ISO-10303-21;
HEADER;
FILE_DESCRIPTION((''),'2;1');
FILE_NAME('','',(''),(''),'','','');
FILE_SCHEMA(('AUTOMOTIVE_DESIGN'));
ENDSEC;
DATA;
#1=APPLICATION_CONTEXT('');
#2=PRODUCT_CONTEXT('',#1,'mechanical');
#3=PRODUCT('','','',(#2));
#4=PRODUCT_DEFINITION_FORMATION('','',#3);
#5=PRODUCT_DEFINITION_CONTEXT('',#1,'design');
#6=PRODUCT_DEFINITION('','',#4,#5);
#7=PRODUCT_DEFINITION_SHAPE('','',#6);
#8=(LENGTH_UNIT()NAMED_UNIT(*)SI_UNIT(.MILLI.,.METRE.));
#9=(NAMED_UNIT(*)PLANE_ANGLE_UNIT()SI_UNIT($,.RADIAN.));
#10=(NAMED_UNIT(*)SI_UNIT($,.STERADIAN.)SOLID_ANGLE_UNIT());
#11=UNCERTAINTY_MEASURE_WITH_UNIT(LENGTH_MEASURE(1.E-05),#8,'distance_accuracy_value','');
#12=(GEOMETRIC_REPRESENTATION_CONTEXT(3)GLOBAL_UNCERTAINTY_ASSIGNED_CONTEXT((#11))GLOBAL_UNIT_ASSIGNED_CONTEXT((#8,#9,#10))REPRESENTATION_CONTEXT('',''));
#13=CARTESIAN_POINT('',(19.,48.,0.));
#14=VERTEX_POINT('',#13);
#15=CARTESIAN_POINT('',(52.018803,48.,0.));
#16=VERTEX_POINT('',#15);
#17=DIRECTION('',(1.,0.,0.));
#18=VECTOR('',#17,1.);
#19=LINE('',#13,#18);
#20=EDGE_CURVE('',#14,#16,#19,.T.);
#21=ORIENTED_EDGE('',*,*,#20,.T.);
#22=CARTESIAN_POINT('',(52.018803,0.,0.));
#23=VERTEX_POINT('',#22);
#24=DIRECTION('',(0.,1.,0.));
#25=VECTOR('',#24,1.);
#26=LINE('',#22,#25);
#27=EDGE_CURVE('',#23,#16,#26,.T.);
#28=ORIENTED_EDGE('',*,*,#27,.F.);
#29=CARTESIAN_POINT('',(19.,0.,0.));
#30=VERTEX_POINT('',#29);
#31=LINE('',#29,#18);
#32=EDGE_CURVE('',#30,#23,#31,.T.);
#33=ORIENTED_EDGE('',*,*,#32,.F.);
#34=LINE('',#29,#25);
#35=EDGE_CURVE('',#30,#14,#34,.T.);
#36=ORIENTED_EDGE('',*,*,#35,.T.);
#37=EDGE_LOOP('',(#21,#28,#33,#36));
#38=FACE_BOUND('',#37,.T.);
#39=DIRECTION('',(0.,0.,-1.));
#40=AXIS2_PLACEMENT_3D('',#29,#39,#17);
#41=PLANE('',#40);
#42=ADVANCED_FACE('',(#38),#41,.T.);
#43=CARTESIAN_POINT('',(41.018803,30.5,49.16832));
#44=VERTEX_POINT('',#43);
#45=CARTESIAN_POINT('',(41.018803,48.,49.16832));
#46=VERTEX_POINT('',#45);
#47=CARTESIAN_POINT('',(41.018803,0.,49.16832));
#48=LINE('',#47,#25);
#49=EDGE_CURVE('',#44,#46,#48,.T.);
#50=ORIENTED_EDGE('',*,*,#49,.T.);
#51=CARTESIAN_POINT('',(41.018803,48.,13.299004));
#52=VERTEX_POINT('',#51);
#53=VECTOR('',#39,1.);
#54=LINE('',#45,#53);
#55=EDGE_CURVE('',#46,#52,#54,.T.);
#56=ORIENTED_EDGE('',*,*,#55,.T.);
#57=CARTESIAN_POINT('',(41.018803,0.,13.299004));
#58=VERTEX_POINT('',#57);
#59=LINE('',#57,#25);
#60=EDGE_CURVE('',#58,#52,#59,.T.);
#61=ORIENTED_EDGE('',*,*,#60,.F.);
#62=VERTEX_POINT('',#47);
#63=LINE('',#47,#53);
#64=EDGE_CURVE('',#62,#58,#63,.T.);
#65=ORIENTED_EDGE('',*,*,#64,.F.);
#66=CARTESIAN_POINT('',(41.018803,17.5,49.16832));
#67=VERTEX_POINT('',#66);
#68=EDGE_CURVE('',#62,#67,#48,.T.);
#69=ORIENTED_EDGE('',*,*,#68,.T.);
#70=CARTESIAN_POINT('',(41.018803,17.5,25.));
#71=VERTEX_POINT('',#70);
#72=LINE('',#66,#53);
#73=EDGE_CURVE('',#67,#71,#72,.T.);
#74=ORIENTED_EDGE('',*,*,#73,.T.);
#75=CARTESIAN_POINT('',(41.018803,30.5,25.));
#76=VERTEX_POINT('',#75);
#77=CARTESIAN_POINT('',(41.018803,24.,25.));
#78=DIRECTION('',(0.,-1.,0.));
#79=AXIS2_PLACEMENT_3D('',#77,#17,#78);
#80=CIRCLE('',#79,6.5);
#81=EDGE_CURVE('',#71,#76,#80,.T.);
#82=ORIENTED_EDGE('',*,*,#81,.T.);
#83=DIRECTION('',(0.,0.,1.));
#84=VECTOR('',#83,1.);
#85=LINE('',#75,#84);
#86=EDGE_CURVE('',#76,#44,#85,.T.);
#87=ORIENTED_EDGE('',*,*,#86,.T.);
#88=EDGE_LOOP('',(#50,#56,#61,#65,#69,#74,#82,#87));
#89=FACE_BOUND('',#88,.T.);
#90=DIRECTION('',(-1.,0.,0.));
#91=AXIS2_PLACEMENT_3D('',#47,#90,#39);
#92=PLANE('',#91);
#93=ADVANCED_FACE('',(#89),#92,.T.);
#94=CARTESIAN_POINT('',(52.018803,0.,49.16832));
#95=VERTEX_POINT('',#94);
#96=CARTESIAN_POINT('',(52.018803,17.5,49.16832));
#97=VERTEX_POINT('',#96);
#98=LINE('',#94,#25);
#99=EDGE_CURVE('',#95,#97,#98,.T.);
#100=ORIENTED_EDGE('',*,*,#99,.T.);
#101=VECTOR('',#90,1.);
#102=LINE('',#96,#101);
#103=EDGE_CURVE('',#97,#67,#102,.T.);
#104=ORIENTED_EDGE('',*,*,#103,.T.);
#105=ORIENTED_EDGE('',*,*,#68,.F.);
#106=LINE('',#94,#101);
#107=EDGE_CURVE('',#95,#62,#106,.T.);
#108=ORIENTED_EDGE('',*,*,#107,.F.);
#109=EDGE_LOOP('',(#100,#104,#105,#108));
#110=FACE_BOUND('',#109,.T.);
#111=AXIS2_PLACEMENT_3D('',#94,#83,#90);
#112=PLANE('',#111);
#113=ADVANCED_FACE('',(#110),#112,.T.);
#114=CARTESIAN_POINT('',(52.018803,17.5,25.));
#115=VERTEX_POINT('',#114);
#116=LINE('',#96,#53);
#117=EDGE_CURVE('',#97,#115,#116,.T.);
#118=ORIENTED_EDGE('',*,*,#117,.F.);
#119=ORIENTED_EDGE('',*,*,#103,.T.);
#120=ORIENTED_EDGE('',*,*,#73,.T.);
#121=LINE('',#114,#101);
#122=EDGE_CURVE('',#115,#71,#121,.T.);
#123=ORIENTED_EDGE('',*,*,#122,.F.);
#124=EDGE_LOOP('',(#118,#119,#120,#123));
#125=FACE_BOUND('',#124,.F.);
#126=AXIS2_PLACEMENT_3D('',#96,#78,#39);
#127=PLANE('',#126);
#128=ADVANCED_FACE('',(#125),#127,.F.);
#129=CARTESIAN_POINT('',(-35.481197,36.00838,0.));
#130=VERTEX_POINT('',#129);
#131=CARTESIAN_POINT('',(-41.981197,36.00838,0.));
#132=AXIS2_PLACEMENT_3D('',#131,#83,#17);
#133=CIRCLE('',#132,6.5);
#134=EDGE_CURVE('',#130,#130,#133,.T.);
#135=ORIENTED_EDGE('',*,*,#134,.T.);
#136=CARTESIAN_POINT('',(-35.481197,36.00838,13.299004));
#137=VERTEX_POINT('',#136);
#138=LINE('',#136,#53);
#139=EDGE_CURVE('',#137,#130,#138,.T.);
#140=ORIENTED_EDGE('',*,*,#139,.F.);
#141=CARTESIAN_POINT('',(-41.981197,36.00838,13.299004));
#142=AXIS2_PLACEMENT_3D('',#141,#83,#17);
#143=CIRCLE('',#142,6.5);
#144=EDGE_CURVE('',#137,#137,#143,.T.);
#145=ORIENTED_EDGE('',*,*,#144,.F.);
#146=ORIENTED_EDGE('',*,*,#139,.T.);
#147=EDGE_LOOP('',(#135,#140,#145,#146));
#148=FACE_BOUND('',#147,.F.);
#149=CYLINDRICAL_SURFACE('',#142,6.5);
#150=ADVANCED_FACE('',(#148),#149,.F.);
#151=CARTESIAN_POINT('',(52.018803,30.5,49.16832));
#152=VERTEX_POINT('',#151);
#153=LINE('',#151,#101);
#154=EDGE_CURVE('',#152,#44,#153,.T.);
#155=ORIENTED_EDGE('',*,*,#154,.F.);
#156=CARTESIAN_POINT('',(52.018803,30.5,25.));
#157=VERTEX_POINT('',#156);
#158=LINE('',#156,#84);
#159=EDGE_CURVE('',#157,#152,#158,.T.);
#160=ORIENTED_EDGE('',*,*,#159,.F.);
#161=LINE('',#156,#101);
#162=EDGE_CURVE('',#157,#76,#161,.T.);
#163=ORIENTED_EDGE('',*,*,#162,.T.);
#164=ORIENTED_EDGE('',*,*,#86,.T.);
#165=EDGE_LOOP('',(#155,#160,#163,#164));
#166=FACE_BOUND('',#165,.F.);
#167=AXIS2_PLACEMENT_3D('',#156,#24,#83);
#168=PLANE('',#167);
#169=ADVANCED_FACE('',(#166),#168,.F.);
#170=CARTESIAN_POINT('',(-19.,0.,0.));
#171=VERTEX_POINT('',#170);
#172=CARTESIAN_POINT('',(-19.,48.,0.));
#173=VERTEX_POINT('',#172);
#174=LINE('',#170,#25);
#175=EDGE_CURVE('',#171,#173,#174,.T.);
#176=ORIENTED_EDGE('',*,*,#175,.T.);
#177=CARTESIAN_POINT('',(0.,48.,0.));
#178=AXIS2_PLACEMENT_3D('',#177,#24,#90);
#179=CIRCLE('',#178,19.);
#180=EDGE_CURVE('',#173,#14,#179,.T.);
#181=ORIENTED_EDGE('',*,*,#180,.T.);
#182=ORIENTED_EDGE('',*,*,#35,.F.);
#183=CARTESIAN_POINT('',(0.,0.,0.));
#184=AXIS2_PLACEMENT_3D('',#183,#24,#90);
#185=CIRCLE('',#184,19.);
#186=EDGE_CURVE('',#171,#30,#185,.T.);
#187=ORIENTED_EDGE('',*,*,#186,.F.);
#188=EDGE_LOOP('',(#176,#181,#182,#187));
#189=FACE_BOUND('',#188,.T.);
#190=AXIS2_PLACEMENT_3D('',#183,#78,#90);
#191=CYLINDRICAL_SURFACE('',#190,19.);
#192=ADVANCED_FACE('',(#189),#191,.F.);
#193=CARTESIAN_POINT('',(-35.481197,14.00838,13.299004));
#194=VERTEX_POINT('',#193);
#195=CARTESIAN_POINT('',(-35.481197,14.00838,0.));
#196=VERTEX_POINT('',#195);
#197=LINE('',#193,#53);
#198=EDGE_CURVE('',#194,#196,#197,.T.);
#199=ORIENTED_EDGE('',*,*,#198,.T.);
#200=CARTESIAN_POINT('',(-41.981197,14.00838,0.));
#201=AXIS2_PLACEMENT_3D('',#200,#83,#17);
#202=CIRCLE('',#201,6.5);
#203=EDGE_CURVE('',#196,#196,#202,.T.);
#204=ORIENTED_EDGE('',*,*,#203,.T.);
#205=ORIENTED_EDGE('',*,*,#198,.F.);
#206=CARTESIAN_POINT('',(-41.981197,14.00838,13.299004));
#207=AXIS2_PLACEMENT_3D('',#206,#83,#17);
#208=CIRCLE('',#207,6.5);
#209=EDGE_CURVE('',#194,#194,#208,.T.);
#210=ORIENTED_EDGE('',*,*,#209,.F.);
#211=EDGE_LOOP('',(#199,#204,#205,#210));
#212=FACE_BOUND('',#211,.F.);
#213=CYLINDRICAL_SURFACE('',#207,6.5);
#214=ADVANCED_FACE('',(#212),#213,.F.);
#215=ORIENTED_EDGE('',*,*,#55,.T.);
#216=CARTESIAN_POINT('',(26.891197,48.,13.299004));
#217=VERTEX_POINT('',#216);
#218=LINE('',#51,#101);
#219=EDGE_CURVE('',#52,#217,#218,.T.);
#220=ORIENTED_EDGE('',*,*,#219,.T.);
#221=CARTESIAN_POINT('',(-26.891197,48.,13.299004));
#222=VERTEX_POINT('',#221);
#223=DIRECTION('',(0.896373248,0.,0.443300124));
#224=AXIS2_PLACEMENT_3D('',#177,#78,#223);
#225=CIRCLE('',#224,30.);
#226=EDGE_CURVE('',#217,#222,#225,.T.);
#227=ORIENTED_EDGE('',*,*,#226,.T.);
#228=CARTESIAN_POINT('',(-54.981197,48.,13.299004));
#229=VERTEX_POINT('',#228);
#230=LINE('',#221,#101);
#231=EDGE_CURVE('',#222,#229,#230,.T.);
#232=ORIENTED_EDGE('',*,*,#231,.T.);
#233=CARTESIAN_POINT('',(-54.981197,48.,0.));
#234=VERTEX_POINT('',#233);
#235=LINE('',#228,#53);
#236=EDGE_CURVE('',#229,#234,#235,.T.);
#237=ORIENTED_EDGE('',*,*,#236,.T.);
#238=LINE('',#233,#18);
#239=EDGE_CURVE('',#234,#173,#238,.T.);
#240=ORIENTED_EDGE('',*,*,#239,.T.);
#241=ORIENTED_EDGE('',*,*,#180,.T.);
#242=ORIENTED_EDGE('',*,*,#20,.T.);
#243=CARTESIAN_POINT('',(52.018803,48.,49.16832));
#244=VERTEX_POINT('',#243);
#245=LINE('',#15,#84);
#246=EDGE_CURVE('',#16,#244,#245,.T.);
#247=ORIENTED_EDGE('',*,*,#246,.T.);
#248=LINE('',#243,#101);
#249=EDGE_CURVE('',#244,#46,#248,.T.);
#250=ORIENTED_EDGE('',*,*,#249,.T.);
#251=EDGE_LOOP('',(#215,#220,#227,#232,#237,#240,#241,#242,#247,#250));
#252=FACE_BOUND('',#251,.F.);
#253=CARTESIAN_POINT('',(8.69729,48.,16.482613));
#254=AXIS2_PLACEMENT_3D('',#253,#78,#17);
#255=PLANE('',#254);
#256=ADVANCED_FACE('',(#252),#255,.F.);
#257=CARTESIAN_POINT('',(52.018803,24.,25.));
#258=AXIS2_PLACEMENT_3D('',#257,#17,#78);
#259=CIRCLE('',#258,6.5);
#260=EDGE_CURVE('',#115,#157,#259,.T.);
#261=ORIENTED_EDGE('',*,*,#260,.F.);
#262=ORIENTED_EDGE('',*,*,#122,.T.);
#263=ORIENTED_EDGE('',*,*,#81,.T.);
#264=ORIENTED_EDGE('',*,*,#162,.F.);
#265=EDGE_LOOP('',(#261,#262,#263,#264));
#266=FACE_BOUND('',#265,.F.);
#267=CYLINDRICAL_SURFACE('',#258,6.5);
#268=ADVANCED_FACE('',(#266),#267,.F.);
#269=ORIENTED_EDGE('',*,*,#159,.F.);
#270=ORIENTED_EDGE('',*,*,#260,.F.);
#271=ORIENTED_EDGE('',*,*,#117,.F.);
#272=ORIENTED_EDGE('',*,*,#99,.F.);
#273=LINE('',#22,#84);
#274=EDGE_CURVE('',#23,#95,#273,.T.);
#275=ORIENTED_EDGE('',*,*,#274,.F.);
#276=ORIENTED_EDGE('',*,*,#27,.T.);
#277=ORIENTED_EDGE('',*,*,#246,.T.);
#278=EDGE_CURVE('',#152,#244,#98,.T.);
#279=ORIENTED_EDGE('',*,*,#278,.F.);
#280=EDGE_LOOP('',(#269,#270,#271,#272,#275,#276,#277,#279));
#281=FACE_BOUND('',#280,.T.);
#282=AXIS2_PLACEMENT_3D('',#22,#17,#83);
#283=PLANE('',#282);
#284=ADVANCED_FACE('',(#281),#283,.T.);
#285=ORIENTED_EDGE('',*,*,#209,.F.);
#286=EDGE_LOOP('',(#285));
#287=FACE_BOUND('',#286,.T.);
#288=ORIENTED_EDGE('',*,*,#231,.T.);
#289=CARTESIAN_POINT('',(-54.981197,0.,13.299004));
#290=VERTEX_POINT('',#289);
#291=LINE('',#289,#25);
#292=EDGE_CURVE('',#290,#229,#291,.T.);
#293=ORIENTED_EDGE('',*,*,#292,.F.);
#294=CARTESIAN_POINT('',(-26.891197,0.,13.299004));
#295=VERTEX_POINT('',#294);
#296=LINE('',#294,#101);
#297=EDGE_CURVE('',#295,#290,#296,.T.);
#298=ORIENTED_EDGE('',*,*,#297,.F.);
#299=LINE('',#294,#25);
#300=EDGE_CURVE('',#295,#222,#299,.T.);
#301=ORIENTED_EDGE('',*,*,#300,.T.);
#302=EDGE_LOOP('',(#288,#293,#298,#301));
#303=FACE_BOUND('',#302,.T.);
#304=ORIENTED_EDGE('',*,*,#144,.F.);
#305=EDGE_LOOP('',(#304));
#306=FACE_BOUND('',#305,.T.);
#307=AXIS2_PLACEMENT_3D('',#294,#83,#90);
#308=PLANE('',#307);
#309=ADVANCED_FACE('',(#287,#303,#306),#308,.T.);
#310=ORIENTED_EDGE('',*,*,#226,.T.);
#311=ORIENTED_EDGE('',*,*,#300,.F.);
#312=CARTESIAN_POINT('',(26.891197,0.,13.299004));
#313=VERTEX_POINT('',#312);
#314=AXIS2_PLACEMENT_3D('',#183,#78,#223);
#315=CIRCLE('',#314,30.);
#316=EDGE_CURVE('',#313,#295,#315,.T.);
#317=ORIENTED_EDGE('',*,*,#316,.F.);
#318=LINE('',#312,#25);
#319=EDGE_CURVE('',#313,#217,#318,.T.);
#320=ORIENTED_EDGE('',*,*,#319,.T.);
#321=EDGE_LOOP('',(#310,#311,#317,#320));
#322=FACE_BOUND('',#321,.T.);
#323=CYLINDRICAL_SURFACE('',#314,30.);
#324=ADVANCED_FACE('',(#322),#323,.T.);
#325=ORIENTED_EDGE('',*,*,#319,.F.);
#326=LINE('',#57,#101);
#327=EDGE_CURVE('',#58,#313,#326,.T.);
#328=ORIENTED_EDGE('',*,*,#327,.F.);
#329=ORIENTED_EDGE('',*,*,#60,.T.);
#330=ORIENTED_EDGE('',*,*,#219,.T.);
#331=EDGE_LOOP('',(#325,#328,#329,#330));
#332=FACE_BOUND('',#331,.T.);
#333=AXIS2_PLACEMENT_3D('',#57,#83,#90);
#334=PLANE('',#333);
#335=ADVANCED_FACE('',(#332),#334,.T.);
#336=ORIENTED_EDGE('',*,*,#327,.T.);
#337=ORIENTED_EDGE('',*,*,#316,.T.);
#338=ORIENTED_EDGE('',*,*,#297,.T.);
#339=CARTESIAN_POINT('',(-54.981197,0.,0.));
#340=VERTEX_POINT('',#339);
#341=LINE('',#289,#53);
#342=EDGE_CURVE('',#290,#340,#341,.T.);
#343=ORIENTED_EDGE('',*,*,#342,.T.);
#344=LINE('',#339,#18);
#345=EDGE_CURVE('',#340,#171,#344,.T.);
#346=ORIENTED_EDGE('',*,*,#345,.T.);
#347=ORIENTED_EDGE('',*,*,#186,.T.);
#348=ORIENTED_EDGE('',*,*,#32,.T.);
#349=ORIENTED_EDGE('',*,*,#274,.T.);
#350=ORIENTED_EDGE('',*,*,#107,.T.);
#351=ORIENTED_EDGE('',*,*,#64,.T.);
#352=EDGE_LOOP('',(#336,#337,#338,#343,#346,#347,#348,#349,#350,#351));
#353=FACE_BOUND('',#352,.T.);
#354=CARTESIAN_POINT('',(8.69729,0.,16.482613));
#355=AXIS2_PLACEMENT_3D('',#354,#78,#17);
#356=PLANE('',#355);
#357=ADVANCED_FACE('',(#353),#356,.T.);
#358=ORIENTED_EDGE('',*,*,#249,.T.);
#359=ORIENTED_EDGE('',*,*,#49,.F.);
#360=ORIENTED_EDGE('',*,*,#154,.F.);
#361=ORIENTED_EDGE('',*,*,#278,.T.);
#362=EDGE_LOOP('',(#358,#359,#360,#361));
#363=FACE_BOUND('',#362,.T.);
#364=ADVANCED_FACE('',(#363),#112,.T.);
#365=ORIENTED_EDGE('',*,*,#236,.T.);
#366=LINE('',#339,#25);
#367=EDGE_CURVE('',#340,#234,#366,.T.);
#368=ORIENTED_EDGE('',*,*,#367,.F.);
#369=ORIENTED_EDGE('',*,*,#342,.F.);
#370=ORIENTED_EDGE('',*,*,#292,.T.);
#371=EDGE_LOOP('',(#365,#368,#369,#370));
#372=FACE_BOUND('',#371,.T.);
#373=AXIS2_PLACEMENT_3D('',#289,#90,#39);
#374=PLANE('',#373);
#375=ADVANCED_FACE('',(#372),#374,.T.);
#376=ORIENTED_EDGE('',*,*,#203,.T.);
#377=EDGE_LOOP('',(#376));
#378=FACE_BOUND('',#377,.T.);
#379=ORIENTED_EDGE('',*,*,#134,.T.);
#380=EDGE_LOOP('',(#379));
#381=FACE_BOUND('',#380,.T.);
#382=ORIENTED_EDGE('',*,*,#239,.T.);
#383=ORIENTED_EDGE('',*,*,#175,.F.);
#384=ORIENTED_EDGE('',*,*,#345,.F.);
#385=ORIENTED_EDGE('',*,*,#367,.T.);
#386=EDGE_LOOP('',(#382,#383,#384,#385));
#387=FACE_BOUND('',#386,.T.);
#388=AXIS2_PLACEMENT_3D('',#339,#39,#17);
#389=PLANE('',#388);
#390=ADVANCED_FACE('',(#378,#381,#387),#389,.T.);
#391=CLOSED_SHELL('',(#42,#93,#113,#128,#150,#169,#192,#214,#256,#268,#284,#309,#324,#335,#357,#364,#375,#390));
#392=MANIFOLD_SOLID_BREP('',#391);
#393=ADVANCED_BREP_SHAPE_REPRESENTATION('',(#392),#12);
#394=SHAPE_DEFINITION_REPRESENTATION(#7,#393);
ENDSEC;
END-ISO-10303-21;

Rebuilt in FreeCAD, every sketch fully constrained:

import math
import FreeCAD as App
import Part
import Sketcher
from FreeCAD import Vector
Q = App.Units.Quantity

doc = App.newDocument("Part")
body = doc.addObject("PartDesign::Body", "Body")

sketch1 = body.newObject("Sketcher::SketchObject", "Sketch")
sketch1.AttachmentSupport = (doc.getObject("XZ_Plane"), [""])
sketch1.MapMode = "FlatFace"
sketch1.addGeometry(Part.LineSegment(Vector(-54.981197, 0, 0), Vector(-19, 0, 0)), False)
sketch1.addGeometry(Part.ArcOfCircle(Part.Circle(Vector(0, 0, 0), Vector(0, 0, 1), 19), math.radians(0), math.radians(180)), False)
sketch1.addGeometry(Part.LineSegment(Vector(19, 0, 0), Vector(52.018803, 0, 0)), False)
sketch1.addGeometry(Part.LineSegment(Vector(52.018803, 0, 0), Vector(52.018803, 49.16832, 0)), False)
sketch1.addGeometry(Part.LineSegment(Vector(52.018803, 49.16832, 0), Vector(41.018803, 49.16832, 0)), False)
sketch1.addGeometry(Part.LineSegment(Vector(41.018803, 49.16832, 0), Vector(41.018803, 13.299004, 0)), False)
sketch1.addGeometry(Part.LineSegment(Vector(41.018803, 13.299004, 0), Vector(26.891197, 13.299004, 0)), False)
sketch1.addGeometry(Part.ArcOfCircle(Part.Circle(Vector(0, 0, 0), Vector(0, 0, 1), 30), math.radians(26.314632), math.radians(153.685368)), False)
sketch1.addGeometry(Part.LineSegment(Vector(-26.891197, 13.299004, 0), Vector(-54.981197, 13.299004, 0)), False)
sketch1.addGeometry(Part.LineSegment(Vector(-54.981197, 13.299004, 0), Vector(-54.981197, 0, 0)), False)
sketch1.addConstraint(Sketcher.Constraint("Coincident", 0, 2, 1, 2))
sketch1.addConstraint(Sketcher.Constraint("Coincident", 1, 1, 2, 1))
sketch1.addConstraint(Sketcher.Constraint("Coincident", 2, 2, 3, 1))
sketch1.addConstraint(Sketcher.Constraint("Coincident", 3, 2, 4, 1))
sketch1.addConstraint(Sketcher.Constraint("Coincident", 4, 2, 5, 1))
sketch1.addConstraint(Sketcher.Constraint("Coincident", 5, 2, 6, 1))
sketch1.addConstraint(Sketcher.Constraint("Coincident", 6, 2, 7, 1))
sketch1.addConstraint(Sketcher.Constraint("Coincident", 7, 2, 8, 1))
sketch1.addConstraint(Sketcher.Constraint("Coincident", 8, 2, 9, 1))
sketch1.addConstraint(Sketcher.Constraint("Coincident", 9, 2, 0, 1))
sketch1.addConstraint(Sketcher.Constraint("Horizontal", 0))
sketch1.addConstraint(Sketcher.Constraint("Horizontal", 2))
sketch1.addConstraint(Sketcher.Constraint("Vertical", 3))
sketch1.addConstraint(Sketcher.Constraint("Horizontal", 4))
sketch1.addConstraint(Sketcher.Constraint("Vertical", 5))
sketch1.addConstraint(Sketcher.Constraint("Horizontal", 6))
sketch1.addConstraint(Sketcher.Constraint("Horizontal", 8))
sketch1.addConstraint(Sketcher.Constraint("Vertical", 9))
sketch1.addConstraint(Sketcher.Constraint("Coincident", 1, 3, -1, 1))
sketch1.addConstraint(Sketcher.Constraint("Coincident", 7, 3, -1, 1))
sketch1.addConstraint(Sketcher.Constraint("PointOnObject", 0, 2, -1))
sketch1.addConstraint(Sketcher.Constraint("PointOnObject", 1, 1, -1))
sketch1.addConstraint(Sketcher.Constraint("Horizontal", 6, 2, 7, 2))
sketch1.addConstraint(Sketcher.Constraint("Radius", 1, Q("19 mm")))
sketch1.addConstraint(Sketcher.Constraint("Radius", 7, Q("30 mm")))
sketch1.addConstraint(Sketcher.Constraint("DistanceX", 4, 2, 4, 1, Q("11 mm")))
sketch1.addConstraint(Sketcher.Constraint("DistanceX", 8, 2, 8, 1, Q("28.09 mm")))
sketch1.addConstraint(Sketcher.Constraint("DistanceY", 3, 1, 3, 2, Q("49.16832 mm")))
sketch1.addConstraint(Sketcher.Constraint("DistanceX", 0, 1, 0, 2, Q("35.981197 mm")))
sketch1.addConstraint(Sketcher.Constraint("DistanceX", 2, 1, 2, 2, Q("33.018803 mm")))
pad1 = body.newObject("PartDesign::Pad", "Pad")
pad1.Profile = sketch1
pad1.Length = 48
pad1.Reversed = True

sketch2 = body.newObject("Sketcher::SketchObject", "Sketch001")
sketch2.AttachmentSupport = (doc.getObject("YZ_Plane"), [""])
sketch2.MapMode = "FlatFace"
sketch2.AttachmentOffset = App.Placement(Vector(0, 0, 52.018803), App.Rotation())
sketch2.addGeometry(Part.LineSegment(Vector(30.5, 49.16832, 0), Vector(17.5, 49.16832, 0)), False)
sketch2.addGeometry(Part.LineSegment(Vector(17.5, 49.16832, 0), Vector(17.5, 25, 0)), False)
sketch2.addGeometry(Part.ArcOfCircle(Part.Circle(Vector(24, 25, 0), Vector(0, 0, 1), 6.5), math.radians(180), math.radians(360)), False)
sketch2.addGeometry(Part.LineSegment(Vector(30.5, 25, 0), Vector(30.5, 49.16832, 0)), False)
sketch2.addConstraint(Sketcher.Constraint("Coincident", 0, 2, 1, 1))
sketch2.addConstraint(Sketcher.Constraint("Tangent", 1, 2, 2, 1))
sketch2.addConstraint(Sketcher.Constraint("Tangent", 2, 2, 3, 1))
sketch2.addConstraint(Sketcher.Constraint("Coincident", 3, 2, 0, 1))
sketch2.addConstraint(Sketcher.Constraint("Horizontal", 0))
sketch2.addConstraint(Sketcher.Constraint("Vertical", 1))
sketch2.addConstraint(Sketcher.Constraint("Vertical", 3))
sketch2.addConstraint(Sketcher.Constraint("Radius", 2, Q("6.5 mm")))
sketch2.addConstraint(Sketcher.Constraint("DistanceX", -1, 1, 2, 3, Q("24 mm")))
sketch2.addConstraint(Sketcher.Constraint("DistanceY", -1, 1, 2, 3, Q("25 mm")))
sketch2.addConstraint(Sketcher.Constraint("DistanceY", 1, 2, 1, 1, Q("24.16832 mm")))
pocket1 = body.newObject("PartDesign::Pocket", "Pocket")
pocket1.Profile = sketch2
pocket1.Length = 11

sketch3 = body.newObject("Sketcher::SketchObject", "Sketch002")
sketch3.AttachmentSupport = (doc.getObject("XY_Plane"), [""])
sketch3.MapMode = "FlatFace"
sketch3.AttachmentOffset = App.Placement(Vector(0, 0, 13.299004), App.Rotation())
sketch3.addGeometry(Part.Circle(Vector(-41.981197, 36.00838, 0), Vector(0, 0, 1), 6.5), False)
sketch3.addGeometry(Part.Circle(Vector(-41.981197, 14.00838, 0), Vector(0, 0, 1), 6.5), False)
sketch3.addConstraint(Sketcher.Constraint("Equal", 0, 1))
sketch3.addConstraint(Sketcher.Constraint("Vertical", 0, 3, 1, 3))
sketch3.addConstraint(Sketcher.Constraint("Diameter", 0, Q("13 mm")))
sketch3.addConstraint(Sketcher.Constraint("DistanceY", 1, 3, 0, 3, Q("22 mm")))
sketch3.addConstraint(Sketcher.Constraint("DistanceY", -1, 1, 0, 3, Q("36.00838 mm")))
sketch3.addConstraint(Sketcher.Constraint("DistanceX", 0, 3, -1, 1, Q("41.981197 mm")))
pocket2 = body.newObject("PartDesign::Pocket", "Pocket001")
pocket2.Profile = sketch3
pocket2.Type = "ThroughAll"

doc.recompute()
